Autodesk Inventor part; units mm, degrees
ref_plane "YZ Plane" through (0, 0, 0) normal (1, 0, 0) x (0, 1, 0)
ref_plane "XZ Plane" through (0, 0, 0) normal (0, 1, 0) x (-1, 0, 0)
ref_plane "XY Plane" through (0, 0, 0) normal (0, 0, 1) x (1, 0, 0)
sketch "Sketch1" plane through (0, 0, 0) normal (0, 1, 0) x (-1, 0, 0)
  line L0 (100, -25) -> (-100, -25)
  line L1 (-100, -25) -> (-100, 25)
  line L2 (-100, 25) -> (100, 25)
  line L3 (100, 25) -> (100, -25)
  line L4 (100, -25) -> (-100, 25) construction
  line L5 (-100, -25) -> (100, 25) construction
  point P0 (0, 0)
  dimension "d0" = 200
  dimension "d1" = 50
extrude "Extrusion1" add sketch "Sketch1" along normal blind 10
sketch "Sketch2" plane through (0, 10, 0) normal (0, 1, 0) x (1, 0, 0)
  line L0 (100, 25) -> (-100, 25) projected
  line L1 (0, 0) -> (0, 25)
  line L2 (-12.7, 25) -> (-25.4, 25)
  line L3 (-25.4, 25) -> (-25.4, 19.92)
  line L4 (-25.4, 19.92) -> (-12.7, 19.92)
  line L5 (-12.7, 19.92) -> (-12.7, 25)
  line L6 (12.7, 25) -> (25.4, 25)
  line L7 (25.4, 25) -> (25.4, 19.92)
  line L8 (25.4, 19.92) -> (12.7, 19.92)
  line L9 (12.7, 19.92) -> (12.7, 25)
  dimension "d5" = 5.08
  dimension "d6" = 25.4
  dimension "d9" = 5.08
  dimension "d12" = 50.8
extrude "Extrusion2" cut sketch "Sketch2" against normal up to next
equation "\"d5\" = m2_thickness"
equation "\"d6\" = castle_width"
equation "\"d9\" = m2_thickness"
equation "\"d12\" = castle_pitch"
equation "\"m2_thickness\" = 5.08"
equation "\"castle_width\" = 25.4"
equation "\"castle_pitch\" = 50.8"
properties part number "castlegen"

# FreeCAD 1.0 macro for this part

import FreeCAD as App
import Part
import Sketcher
from FreeCAD import Vector
Q = App.Units.Quantity


def add_polygon(sketch, points):
    """Adds a closed chain of lines whose ends are joined by coincident constraints."""
    first, n = sketch.GeometryCount, len(points)
    for a, b in zip(points, points[1:] + points[:1]):
        sketch.addGeometry(Part.LineSegment(App.Vector(*a, 0), App.Vector(*b, 0)), False)
    for i in range(n):
        sketch.addConstraint(Sketcher.Constraint("Coincident", first + i, 2, first + (i + 1) % n, 1))

doc = App.newDocument("Part")
body = doc.addObject("PartDesign::Body", "Body")

# Sketch on XZ plane
sketch1 = doc.addObject("Sketcher::SketchObject", "Sketch")
body.addObject(sketch1)
sketch1.AttachmentSupport = (doc.XZ_Plane, [""])
sketch1.MapMode = "FlatFace"
add_polygon(sketch1, [(100, -25), (-100, -25), (-100, 25), (100, 25)])  # lines 0-3
sketch1.addConstraint([
    Sketcher.Constraint("Horizontal", 0),
    Sketcher.Constraint("Vertical", 1),
    Sketcher.Constraint("Horizontal", 2),
    Sketcher.Constraint("Vertical", 3),
    Sketcher.Constraint("Symmetric", 0, 2, 2, 2, -1, 1),
    Sketcher.Constraint("DistanceY", 1, 1, 1, 2, Q("1.9685 in")),
    Sketcher.Constraint("DistanceX", 0, 2, 0, 1, Q("200 mm")),
])
pad1 = doc.addObject("PartDesign::Pad", "Pad")
body.addObject(pad1)
pad1.Profile = sketch1
pad1.Length = Q("0.3937008 in")
pad1.Reversed = True

# Sketch on XZ plane
sketch2 = doc.addObject("Sketcher::SketchObject", "Sketch001")
body.addObject(sketch2)
sketch2.AttachmentSupport = (doc.XZ_Plane, [""])
sketch2.MapMode = "FlatFace"
sketch2.AttachmentOffset = App.Placement(Vector(0, 0, -0.3937008 * 25.4), App.Rotation())
add_polygon(sketch2, [(25, -20), (25, -25), (13, -25), (13, -20)])  # lines 0-3
add_polygon(sketch2, [(-13, -20), (-13, -25), (-25, -25), (-25, -20)])  # lines 4-7
sketch2.addConstraint([
    Sketcher.Constraint("Vertical", 0),
    Sketcher.Constraint("Horizontal", 1),
    Sketcher.Constraint("Vertical", 2),
    Sketcher.Constraint("Horizontal", 3),
    Sketcher.Constraint("Vertical", 4),
    Sketcher.Constraint("Horizontal", 5),
    Sketcher.Constraint("Vertical", 6),
    Sketcher.Constraint("Horizontal", 7),
    Sketcher.Constraint("Symmetric", 1, 2, 4, 2, -2),
    Sketcher.Constraint("Symmetric", 3, 2, 6, 2, -2),
    Sketcher.Constraint("DistanceY", 0, 2, 0, 1, Q("0.2 in")),
    Sketcher.Constraint("DistanceX", -1, 1, 0, 2, Q("1 in")),
    Sketcher.Constraint("DistanceX", 4, 2, 1, 2, Q("1 in")),
    Sketcher.Constraint("DistanceY", 0, 2, -1, 1, Q("25 mm")),
])
pocket1 = doc.addObject("PartDesign::Pocket", "Pocket")
body.addObject(pocket1)
pocket1.Profile = sketch2
pocket1.Type = "UpToFirst"
pocket1.Reversed = True

doc.recompute()
